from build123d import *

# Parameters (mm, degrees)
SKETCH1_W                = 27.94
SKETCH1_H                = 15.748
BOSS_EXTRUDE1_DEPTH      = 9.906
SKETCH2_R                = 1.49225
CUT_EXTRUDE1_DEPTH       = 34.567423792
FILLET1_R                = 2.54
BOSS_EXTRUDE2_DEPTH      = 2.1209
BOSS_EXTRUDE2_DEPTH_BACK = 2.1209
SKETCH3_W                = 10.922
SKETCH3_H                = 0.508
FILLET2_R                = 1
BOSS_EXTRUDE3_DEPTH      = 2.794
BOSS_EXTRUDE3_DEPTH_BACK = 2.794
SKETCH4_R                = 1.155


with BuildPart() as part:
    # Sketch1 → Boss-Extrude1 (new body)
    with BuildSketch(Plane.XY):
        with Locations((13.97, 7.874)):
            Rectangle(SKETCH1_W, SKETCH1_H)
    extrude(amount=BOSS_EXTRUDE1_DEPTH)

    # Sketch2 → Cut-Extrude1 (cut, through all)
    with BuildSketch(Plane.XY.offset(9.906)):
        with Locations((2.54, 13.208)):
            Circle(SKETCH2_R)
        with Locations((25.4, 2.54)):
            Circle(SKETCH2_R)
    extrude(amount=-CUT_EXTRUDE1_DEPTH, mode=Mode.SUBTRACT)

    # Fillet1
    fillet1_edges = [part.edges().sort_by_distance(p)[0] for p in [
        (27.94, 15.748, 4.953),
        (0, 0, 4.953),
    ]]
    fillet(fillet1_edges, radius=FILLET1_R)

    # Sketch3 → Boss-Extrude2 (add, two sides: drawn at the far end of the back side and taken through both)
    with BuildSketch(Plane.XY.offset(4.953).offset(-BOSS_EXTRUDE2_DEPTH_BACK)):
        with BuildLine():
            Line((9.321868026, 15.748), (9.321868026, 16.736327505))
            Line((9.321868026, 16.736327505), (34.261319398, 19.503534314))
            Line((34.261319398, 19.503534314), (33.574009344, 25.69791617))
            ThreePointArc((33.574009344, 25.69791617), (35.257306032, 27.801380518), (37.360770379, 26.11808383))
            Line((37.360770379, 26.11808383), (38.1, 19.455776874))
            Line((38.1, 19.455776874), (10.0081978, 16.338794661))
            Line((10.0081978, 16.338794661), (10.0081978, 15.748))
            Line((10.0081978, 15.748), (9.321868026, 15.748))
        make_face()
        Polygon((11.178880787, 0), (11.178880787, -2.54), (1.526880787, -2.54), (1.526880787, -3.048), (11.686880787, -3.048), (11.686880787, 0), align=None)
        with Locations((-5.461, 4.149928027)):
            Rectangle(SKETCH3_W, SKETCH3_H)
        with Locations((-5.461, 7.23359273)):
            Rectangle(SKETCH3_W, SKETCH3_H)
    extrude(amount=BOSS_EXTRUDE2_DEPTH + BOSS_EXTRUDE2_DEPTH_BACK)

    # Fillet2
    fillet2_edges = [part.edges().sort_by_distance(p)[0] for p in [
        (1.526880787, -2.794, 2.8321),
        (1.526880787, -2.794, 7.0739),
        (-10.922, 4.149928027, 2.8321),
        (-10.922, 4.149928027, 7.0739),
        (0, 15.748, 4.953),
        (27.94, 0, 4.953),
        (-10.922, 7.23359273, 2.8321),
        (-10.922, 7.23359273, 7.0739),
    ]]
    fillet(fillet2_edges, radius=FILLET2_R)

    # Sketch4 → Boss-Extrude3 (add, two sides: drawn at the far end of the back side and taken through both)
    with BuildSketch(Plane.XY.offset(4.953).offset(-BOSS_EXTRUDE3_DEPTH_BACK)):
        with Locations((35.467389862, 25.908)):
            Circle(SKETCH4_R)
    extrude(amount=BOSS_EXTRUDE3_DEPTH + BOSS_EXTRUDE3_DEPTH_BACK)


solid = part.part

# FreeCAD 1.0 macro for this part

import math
import FreeCAD as App
import Part
import Sketcher
Q = App.Units.Quantity


def edges_at(feature, points):
    """Names of the edges that pass closest to the given points."""
    edges = feature.Shape.Edges
    near = lambda p: min(range(len(edges)), key=lambda i: edges[i].distToShape(Part.Vertex(*p))[0])
    return sorted({f"Edge{near(p) + 1}" for p in points})


def add_polygon(sketch, points):
    """Adds a closed chain of lines whose ends are joined by coincident constraints."""
    first, n = sketch.GeometryCount, len(points)
    for a, b in zip(points, points[1:] + points[:1]):
        sketch.addGeometry(Part.LineSegment(App.Vector(*a, 0), App.Vector(*b, 0)), False)
    for i in range(n):
        sketch.addConstraint(Sketcher.Constraint("Coincident", first + i, 2, first + (i + 1) % n, 1))

doc = App.newDocument("Part")
body = doc.addObject("PartDesign::Body", "Body")

# Sketch on XY plane
sketch1 = body.newObject("Sketcher::SketchObject", "Sketch")
sketch1.AttachmentSupport = (doc.getObject("XY_Plane"), [""])
sketch1.MapMode = "FlatFace"
add_polygon(sketch1, [(0, 16), (0, 0), (28, 0), (28, 16)])  # lines 0-3
sketch1.addConstraint([
    Sketcher.Constraint("Vertical", 0),
    Sketcher.Constraint("Horizontal", 1),
    Sketcher.Constraint("Vertical", 2),
    Sketcher.Constraint("Horizontal", 3),
    Sketcher.Constraint("Coincident", 0, 2, -1, 1),
    Sketcher.Constraint("DistanceX", 1, 1, 1, 2, Q("1.1 in")),
    Sketcher.Constraint("DistanceY", 0, 2, 0, 1, Q("0.62 in")),
])
pad1 = body.newObject("PartDesign::Pad", "Pad")
pad1.Profile = sketch1
pad1.Length = Q("0.39 in")

# Sketch on XY plane
sketch2 = body.newObject("Sketcher::SketchObject", "Sketch001")
sketch2.AttachmentSupport = (doc.getObject("XY_Plane"), [""])
sketch2.MapMode = "FlatFace"
sketch2.AttachmentOffset = App.Placement(App.Vector(0, 0, 0.39 * 25.4), App.Rotation())
sketch2.addGeometry([
    Part.Circle(App.Vector(2.5, 13.2, 0), App.Vector(0, 0, 1), 1.5),
    Part.Circle(App.Vector(25.4, 2.5, 0), App.Vector(0, 0, 1), 1.5),
], False)
sketch2.addConstraint([
    Sketcher.Constraint("Equal", 0, 1),
    Sketcher.Constraint("DistanceX", -1, 1, 1, 3, Q("1 in")),
    Sketcher.Constraint("Diameter", 0, Q("0.1175 in")),
    Sketcher.Constraint("DistanceX", -1, 1, 0, 3, Q("0.1 in")),
    Sketcher.Constraint("DistanceY", -1, 1, 1, 3, Q("0.1 in")),
    Sketcher.Constraint("DistanceY", -1, 1, 0, 3, Q("0.52 in")),
])
pocket1 = body.newObject("PartDesign::Pocket", "Pocket")
pocket1.Profile = sketch2
pocket1.Type = "ThroughAll"
doc.recompute()

fillet = body.newObject("PartDesign::Fillet", "Fillet")
fillet.Base = (pocket1, edges_at(pocket1, [(27.94, 15.748, 4.953), (0, 0, 4.953)]))
fillet.Radius = Q("0.1 in")

# Sketch on XY plane
sketch3 = body.newObject("Sketcher::SketchObject", "Sketch002")
sketch3.AttachmentSupport = (doc.getObject("XY_Plane"), [""])
sketch3.MapMode = "FlatFace"
sketch3.AttachmentOffset = App.Placement(App.Vector(0, 0, 0.195 * 25.4), App.Rotation())
sketch3.addGeometry(Part.LineSegment(App.Vector(9.3, 16.7, 0), App.Vector(9.3, 15.7, 0)), False)  # 0
sketch3.addGeometry(Part.LineSegment(App.Vector(9.3, 15.7, 0), App.Vector(10, 15.7, 0)), False)  # 1
sketch3.addGeometry(Part.LineSegment(App.Vector(10, 15.7, 0), App.Vector(10, 16.3, 0)), False)  # 2
sketch3.addGeometry(Part.LineSegment(App.Vector(10, 16.3, 0), App.Vector(38.1, 19.5, 0)), False)  # 3
sketch3.addGeometry(Part.LineSegment(App.Vector(38.1, 19.5, 0), App.Vector(37.4, 26.1, 0)), False)  # 4
sketch3.addGeometry(Part.ArcOfCircle(Part.Circle(App.Vector(35.5, 25.9, 0), App.Vector(0, 0, 1), 1.9), math.radians(6), math.radians(186)), False)  # 5
sketch3.addGeometry(Part.LineSegment(App.Vector(33.6, 25.7, 0), App.Vector(34.3, 19.5, 0)), False)  # 6
sketch3.addGeometry(Part.LineSegment(App.Vector(34.3, 19.5, 0), App.Vector(9.3, 16.7, 0)), False)  # 7
add_polygon(sketch3, [(11.2, 0), (11.2, -2.5), (1.5, -2.5), (1.5, -3), (11.7, -3), (11.7, 0)])  # lines 8-13
add_polygon(sketch3, [(-10.9, 4.4), (-10.9, 3.9), (0, 3.9), (0, 4.4)])  # lines 14-17
add_polygon(sketch3, [(-10.9, 7.5), (-10.9, 7), (0, 7), (0, 7.5)])  # lines 18-21
sketch3.addConstraint([
    Sketcher.Constraint("Coincident", 0, 2, 1, 1),
    Sketcher.Constraint("Coincident", 1, 2, 2, 1),
    Sketcher.Constraint("Coincident", 2, 2, 3, 1),
    Sketcher.Constraint("Coincident", 3, 2, 4, 1),
    Sketcher.Constraint("Tangent", 4, 2, 5, 1),
    Sketcher.Constraint("Tangent", 5, 2, 6, 1),
    Sketcher.Constraint("Coincident", 6, 2, 7, 1),
    Sketcher.Constraint("Coincident", 7, 2, 0, 1),
    Sketcher.Constraint("Vertical", 0),
    Sketcher.Constraint("Horizontal", 1),
    Sketcher.Constraint("Vertical", 2),
    Sketcher.Constraint("Vertical", 8),
    Sketcher.Constraint("Horizontal", 9),
    Sketcher.Constraint("Vertical", 10),
    Sketcher.Constraint("Horizontal", 11),
    Sketcher.Constraint("Vertical", 12),
    Sketcher.Constraint("Horizontal", 13),
    Sketcher.Constraint("Vertical", 14),
    Sketcher.Constraint("Horizontal", 15),
    Sketcher.Constraint("Vertical", 16),
    Sketcher.Constraint("Horizontal", 17),
    Sketcher.Constraint("Vertical", 18),
    Sketcher.Constraint("Horizontal", 19),
    Sketcher.Constraint("Vertical", 20),
    Sketcher.Constraint("Horizontal", 21),
    Sketcher.Constraint("PointOnObject", 12, 2, -1),
    Sketcher.Constraint("PointOnObject", 15, 2, -2),
    Sketcher.Constraint("PointOnObject", 19, 2, -2),
    Sketcher.Constraint("Perpendicular", 3, 4),
    Sketcher.Constraint("Parallel", 4, 6),
    Sketcher.Constraint("Perpendicular", 6, 7),
    Sketcher.Constraint("Vertical", 17, 2, 18, 2),
    Sketcher.Constraint("Equal", 13, 10),
    Sketcher.Constraint("Equal", 10, 14),
    Sketcher.Constraint("Equal", 16, 18),
    Sketcher.Constraint("DistanceX", 11, 1, 11, 2, Q("0.4 in")),
    Sketcher.Constraint("DistanceY", 8, 2, 8, 1, Q("0.1 in")),
    Sketcher.Constraint("Radius", 5, Q("0.075 in")),
    Sketcher.Constraint("DistanceX", 9, 2, 9, 1, Q("0.38 in")),
    Sketcher.Constraint("DistanceX", 15, 1, 15, 2, Q("0.43 in")),
    Sketcher.Constraint("DistanceX", -1, 1, 3, 2, Q("1.5 in")),
    Sketcher.Constraint("DistanceY", 0, 2, 5, 3, Q("0.4 in")),
    Sketcher.Constraint("DistanceY", -1, 1, 5, 3, Q("1.02 in")),
    Sketcher.Constraint("Distance", 3, 28.264199),
    Sketcher.Constraint("DistanceX", 1, 1, 1, 2, 0.68633),
    Sketcher.Constraint("DistanceY", 0, 2, 0, 1, 0.988328),
    Sketcher.Constraint("DistanceY", 2, 1, 2, 2, 0.590795),
    Sketcher.Constraint("DistanceX", -1, 1, 5, 3, 35.46739),
    Sketcher.Constraint("DistanceX", -1, 1, 8, 2, 11.178881),
    Sketcher.Constraint("DistanceY", -1, 1, 14, 2, 3.895928),
    Sketcher.Constraint("DistanceY", -1, 1, 18, 2, 6.979593),
])
pad2 = body.newObject("PartDesign::Pad", "Pad001")
pad2.Profile = sketch3
pad2.Type = "TwoLengths"
pad2.Length = Q("0.0835 in")
pad2.Length2 = Q("0.0835 in")
doc.recompute()

fillet2 = body.newObject("PartDesign::Fillet", "Fillet001")
fillet2.Base = (pad2, edges_at(pad2, [
    (1.527, -2.794, 2.832),
    (1.527, -2.794, 7.074),
    (-10.922, 4.15, 2.832),
    (-10.922, 4.15, 7.074),
    (0, 15.748, 4.953),
    (27.94, 0, 4.953),
    (-10.922, 7.234, 2.832),
    (-10.922, 7.234, 7.074),
]))
fillet2.Radius = 1

# Sketch on XY plane
sketch4 = body.newObject("Sketcher::SketchObject", "Sketch003")
sketch4.AttachmentSupport = (doc.getObject("XY_Plane"), [""])
sketch4.MapMode = "FlatFace"
sketch4.AttachmentOffset = App.Placement(App.Vector(0, 0, 0.195 * 25.4), App.Rotation())
sketch4.addGeometry(Part.Circle(App.Vector(35.5, 25.9, 0), App.Vector(0, 0, 1), 1.2), False)
sketch4.addConstraint([
    Sketcher.Constraint("Diameter", 0, 2.31),
    Sketcher.Constraint("DistanceY", -1, 1, 0, 3, Q("1.02 in")),
    Sketcher.Constraint("DistanceX", -1, 1, 0, 3, 35.46739),
])
pad3 = body.newObject("PartDesign::Pad", "Pad002")
pad3.Profile = sketch4
pad3.Type = "TwoLengths"
pad3.Length = Q("0.11 in")
pad3.Length2 = Q("0.11 in")

doc.recompute()
